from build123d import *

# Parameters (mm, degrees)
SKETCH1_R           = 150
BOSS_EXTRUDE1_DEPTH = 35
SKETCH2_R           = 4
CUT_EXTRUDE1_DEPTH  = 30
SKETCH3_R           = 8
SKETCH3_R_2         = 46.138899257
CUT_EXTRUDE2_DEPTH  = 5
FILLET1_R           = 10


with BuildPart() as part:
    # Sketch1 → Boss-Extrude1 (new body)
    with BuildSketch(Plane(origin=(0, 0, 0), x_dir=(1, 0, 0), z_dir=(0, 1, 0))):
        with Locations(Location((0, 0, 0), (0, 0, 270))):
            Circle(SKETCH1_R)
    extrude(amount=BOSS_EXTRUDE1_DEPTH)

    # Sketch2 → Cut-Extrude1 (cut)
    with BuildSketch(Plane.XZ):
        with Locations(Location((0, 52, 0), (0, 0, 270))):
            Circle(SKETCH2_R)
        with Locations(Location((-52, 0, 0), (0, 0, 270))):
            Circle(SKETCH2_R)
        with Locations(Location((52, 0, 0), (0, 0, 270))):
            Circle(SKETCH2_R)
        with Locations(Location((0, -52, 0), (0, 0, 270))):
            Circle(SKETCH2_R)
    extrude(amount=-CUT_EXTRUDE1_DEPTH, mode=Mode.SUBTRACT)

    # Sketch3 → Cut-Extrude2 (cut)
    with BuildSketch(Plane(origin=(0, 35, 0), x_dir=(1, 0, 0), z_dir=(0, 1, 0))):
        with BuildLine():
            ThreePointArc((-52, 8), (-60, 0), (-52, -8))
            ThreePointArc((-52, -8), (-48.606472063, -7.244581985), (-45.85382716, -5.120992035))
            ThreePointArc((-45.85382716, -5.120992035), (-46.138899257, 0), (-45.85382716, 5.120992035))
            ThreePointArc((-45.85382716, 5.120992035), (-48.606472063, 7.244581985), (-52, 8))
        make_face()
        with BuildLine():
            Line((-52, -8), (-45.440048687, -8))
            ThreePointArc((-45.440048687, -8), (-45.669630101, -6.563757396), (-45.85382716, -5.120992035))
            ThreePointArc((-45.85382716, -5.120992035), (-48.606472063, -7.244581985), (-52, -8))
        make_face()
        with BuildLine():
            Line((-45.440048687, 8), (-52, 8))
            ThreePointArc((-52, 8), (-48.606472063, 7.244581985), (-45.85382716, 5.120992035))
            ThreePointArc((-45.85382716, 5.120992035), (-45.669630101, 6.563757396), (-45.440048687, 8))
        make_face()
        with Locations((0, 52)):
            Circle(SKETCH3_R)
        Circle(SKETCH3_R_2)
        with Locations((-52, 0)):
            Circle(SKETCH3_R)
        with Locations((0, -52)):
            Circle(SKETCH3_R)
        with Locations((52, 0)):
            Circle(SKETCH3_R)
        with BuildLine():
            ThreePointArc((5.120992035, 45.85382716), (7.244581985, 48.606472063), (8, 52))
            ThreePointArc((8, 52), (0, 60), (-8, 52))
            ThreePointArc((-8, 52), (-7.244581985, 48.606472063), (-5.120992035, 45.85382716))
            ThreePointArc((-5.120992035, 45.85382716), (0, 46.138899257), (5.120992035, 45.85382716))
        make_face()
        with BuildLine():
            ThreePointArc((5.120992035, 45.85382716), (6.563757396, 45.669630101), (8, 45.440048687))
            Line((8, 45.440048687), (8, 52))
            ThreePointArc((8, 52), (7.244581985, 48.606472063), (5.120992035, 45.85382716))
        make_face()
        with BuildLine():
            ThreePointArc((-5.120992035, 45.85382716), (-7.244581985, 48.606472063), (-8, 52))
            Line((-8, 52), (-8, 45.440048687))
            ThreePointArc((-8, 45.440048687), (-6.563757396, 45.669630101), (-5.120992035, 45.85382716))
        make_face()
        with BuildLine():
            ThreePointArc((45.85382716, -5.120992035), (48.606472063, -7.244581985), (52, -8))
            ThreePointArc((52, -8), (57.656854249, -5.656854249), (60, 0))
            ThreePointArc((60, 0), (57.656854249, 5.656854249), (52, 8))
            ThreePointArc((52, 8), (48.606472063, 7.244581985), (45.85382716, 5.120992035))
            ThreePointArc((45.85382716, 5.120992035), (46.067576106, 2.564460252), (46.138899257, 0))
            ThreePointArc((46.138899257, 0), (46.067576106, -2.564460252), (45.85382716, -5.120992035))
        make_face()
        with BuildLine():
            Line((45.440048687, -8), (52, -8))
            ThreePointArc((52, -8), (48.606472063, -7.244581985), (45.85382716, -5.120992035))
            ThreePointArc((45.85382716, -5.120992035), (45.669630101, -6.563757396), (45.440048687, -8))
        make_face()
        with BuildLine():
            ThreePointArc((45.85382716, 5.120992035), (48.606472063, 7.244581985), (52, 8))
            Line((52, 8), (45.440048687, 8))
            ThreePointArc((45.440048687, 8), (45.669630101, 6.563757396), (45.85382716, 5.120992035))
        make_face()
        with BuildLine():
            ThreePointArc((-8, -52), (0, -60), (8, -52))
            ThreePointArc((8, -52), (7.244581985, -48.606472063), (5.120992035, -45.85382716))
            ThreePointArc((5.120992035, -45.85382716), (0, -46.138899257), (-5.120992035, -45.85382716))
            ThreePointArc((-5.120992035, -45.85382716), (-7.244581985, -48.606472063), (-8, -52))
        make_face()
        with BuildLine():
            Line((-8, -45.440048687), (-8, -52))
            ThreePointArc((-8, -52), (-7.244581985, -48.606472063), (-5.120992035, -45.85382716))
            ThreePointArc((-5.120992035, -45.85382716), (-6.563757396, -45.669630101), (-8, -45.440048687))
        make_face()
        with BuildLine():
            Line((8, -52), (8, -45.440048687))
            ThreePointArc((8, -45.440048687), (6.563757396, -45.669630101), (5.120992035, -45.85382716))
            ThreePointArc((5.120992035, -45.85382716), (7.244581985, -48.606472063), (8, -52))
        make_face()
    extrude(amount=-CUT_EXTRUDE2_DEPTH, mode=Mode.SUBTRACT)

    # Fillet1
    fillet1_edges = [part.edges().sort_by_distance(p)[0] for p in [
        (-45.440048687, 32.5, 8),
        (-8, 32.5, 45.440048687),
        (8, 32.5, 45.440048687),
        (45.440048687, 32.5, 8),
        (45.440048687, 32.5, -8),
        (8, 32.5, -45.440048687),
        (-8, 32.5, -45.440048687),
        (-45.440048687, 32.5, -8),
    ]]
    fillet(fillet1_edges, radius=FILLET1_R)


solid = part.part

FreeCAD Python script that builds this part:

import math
import FreeCAD as App
import Part
import Sketcher

V = App.Vector
Q = App.Units.Quantity


def edges_at(feature, points):
    """Names of the edges that pass closest to the given points."""
    edges = feature.Shape.Edges
    near = lambda p: min(range(len(edges)), key=lambda i: edges[i].distToShape(Part.Vertex(*p))[0])
    return sorted({f"Edge{near(p) + 1}" for p in points})

doc = App.newDocument("Part")
body = doc.addObject("PartDesign::Body", "Body")

# Sketch on XZ plane
sketch1 = body.newObject("Sketcher::SketchObject", "Sketch")
sketch1.AttachmentSupport = (doc.getObject("XZ_Plane"), [""])
sketch1.MapMode = "FlatFace"
sketch1.addGeometry(Part.Circle(V(0, 0, 0), V(0, 0, 1), 150), False)
sketch1.addConstraint(Sketcher.Constraint("Coincident", 0, 3, -1, 1))
sketch1.addConstraint(Sketcher.Constraint("Diameter", 0, Q("300 mm")))
pad1 = body.newObject("PartDesign::Pad", "Pad")
pad1.Profile = sketch1
pad1.Length = 35
pad1.Reversed = True

# Sketch on XZ plane
sketch2 = body.newObject("Sketcher::SketchObject", "Sketch001")
sketch2.AttachmentSupport = (doc.getObject("XZ_Plane"), [""])
sketch2.MapMode = "FlatFace"
sketch2.addGeometry(Part.Circle(V(0, 52, 0), V(0, 0, 1), 4), False)
sketch2.addGeometry(Part.Circle(V(-52, 0, 0), V(0, 0, 1), 4), False)
sketch2.addGeometry(Part.Circle(V(52, 0, 0), V(0, 0, 1), 4), False)
sketch2.addGeometry(Part.Circle(V(0, -52, 0), V(0, 0, 1), 4), False)
sketch2.addConstraint(Sketcher.Constraint("Equal", 0, 1))
sketch2.addConstraint(Sketcher.Constraint("Equal", 1, 2))
sketch2.addConstraint(Sketcher.Constraint("Equal", 2, 3))
sketch2.addConstraint(Sketcher.Constraint("Symmetric", 1, 3, 2, 3, -1, 1))
sketch2.addConstraint(Sketcher.Constraint("Symmetric", 0, 3, 3, 3, -1, 1))
sketch2.addConstraint(Sketcher.Constraint("PointOnObject", 0, 3, -2))
sketch2.addConstraint(Sketcher.Constraint("PointOnObject", 1, 3, -1))
sketch2.addConstraint(Sketcher.Constraint("Diameter", 0, Q("8 mm")))
sketch2.addConstraint(Sketcher.Constraint("DistanceY", -1, 1, 0, 3, Q("52 mm")))
sketch2.addConstraint(Sketcher.Constraint("DistanceX", 1, 3, -1, 1, Q("52 mm")))
pocket1 = body.newObject("PartDesign::Pocket", "Pocket")
pocket1.Profile = sketch2
pocket1.Length = 30

# Sketch on XZ plane
sketch3 = body.newObject("Sketcher::SketchObject", "Sketch002")
sketch3.AttachmentSupport = (doc.getObject("XZ_Plane"), [""])
sketch3.MapMode = "FlatFace"
sketch3.AttachmentOffset = App.Placement(V(0, 0, -35), App.Rotation())
sketch3.addGeometry(Part.LineSegment(V(8, -45, 0), V(8, -52, 0)), False)
sketch3.addGeometry(Part.ArcOfCircle(Part.Circle(V(0, -52, 0), V(0, 0, 1), 8), math.radians(180), math.radians(360)), False)
sketch3.addGeometry(Part.LineSegment(V(-8, -52, 0), V(-8, -45, 0)), False)
sketch3.addGeometry(Part.ArcOfCircle(Part.Circle(V(0, 0, 0), V(0, 0, 1), 46), math.radians(-170), math.radians(-100)), False)
sketch3.addGeometry(Part.LineSegment(V(-45, -8, 0), V(-52, -8, 0)), False)
sketch3.addGeometry(Part.ArcOfCircle(Part.Circle(V(-52, 0, 0), V(0, 0, 1), 8), math.radians(90), math.radians(270)), False)
sketch3.addGeometry(Part.LineSegment(V(-52, 8, 0), V(-45, 8, 0)), False)
sketch3.addGeometry(Part.ArcOfCircle(Part.Circle(V(0, 0, 0), V(0, 0, 1), 46), math.radians(100), math.radians(170)), False)
sketch3.addGeometry(Part.LineSegment(V(-8, 45, 0), V(-8, 52, 0)), False)
sketch3.addGeometry(Part.ArcOfCircle(Part.Circle(V(0, 52, 0), V(0, 0, 1), 8), math.radians(0), math.radians(180)), False)
sketch3.addGeometry(Part.LineSegment(V(8, 52, 0), V(8, 45, 0)), False)
sketch3.addGeometry(Part.ArcOfCircle(Part.Circle(V(0, 0, 0), V(0, 0, 1), 46), math.radians(10), math.radians(80)), False)
sketch3.addGeometry(Part.LineSegment(V(45, 8, 0), V(52, 8, 0)), False)
sketch3.addGeometry(Part.ArcOfCircle(Part.Circle(V(52, 0, 0), V(0, 0, 1), 8), math.radians(0), math.radians(90)), False)
sketch3.addGeometry(Part.ArcOfCircle(Part.Circle(V(52, 0, 0), V(0, 0, 1), 8), math.radians(-90), math.radians(0)), False)
sketch3.addGeometry(Part.LineSegment(V(52, -8, 0), V(45, -8, 0)), False)
sketch3.addGeometry(Part.ArcOfCircle(Part.Circle(V(0, 0, 0), V(0, 0, 1), 46), math.radians(-80), math.radians(-10)), False)
sketch3.addConstraint(Sketcher.Constraint("Tangent", 0, 2, 1, 2))
sketch3.addConstraint(Sketcher.Constraint("Tangent", 1, 1, 2, 1))
sketch3.addConstraint(Sketcher.Constraint("Coincident", 2, 2, 3, 2))
sketch3.addConstraint(Sketcher.Constraint("Coincident", 3, 1, 4, 1))
sketch3.addConstraint(Sketcher.Constraint("Tangent", 4, 2, 5, 2))
sketch3.addConstraint(Sketcher.Constraint("Tangent", 5, 1, 6, 1))
sketch3.addConstraint(Sketcher.Constraint("Coincident", 6, 2, 7, 2))
sketch3.addConstraint(Sketcher.Constraint("Coincident", 7, 1, 8, 1))
sketch3.addConstraint(Sketcher.Constraint("Tangent", 8, 2, 9, 2))
sketch3.addConstraint(Sketcher.Constraint("Tangent", 9, 1, 10, 1))
sketch3.addConstraint(Sketcher.Constraint("Coincident", 10, 2, 11, 2))
sketch3.addConstraint(Sketcher.Constraint("Coincident", 11, 1, 12, 1))
sketch3.addConstraint(Sketcher.Constraint("Tangent", 12, 2, 13, 2))
sketch3.addConstraint(Sketcher.Constraint("Tangent", 13, 1, 14, 2))
sketch3.addConstraint(Sketcher.Constraint("Tangent", 14, 1, 15, 1))
sketch3.addConstraint(Sketcher.Constraint("Coincident", 15, 2, 16, 2))
sketch3.addConstraint(Sketcher.Constraint("Coincident", 16, 1, 0, 1))
sketch3.addConstraint(Sketcher.Constraint("Vertical", 0))
sketch3.addConstraint(Sketcher.Constraint("Vertical", 2))
sketch3.addConstraint(Sketcher.Constraint("Horizontal", 4))
sketch3.addConstraint(Sketcher.Constraint("Horizontal", 6))
sketch3.addConstraint(Sketcher.Constraint("Vertical", 8))
sketch3.addConstraint(Sketcher.Constraint("Vertical", 10))
sketch3.addConstraint(Sketcher.Constraint("Horizontal", 12))
sketch3.addConstraint(Sketcher.Constraint("Horizontal", 15))
sketch3.addConstraint(Sketcher.Constraint("Coincident", 3, 3, -1, 1))
sketch3.addConstraint(Sketcher.Constraint("Coincident", 7, 3, -1, 1))
sketch3.addConstraint(Sketcher.Constraint("Coincident", 11, 3, -1, 1))
sketch3.addConstraint(Sketcher.Constraint("Coincident", 16, 3, -1, 1))
sketch3.addConstraint(Sketcher.Constraint("Equal", 1, 5))
sketch3.addConstraint(Sketcher.Constraint("Equal", 3, 7))
sketch3.addConstraint(Sketcher.Constraint("Equal", 5, 9))
sketch3.addConstraint(Sketcher.Constraint("Equal", 7, 11))
sketch3.addConstraint(Sketcher.Constraint("Equal", 9, 13))
sketch3.addConstraint(Sketcher.Constraint("Equal", 13, 14))
sketch3.addConstraint(Sketcher.Constraint("Equal", 11, 16))
sketch3.addConstraint(Sketcher.Constraint("Symmetric", 1, 3, 9, 3, -1, 1))
sketch3.addConstraint(Sketcher.Constraint("Symmetric", 5, 3, 13, 3, -1, 1))
sketch3.addConstraint(Sketcher.Constraint("PointOnObject", 1, 3, -2))
sketch3.addConstraint(Sketcher.Constraint("PointOnObject", 5, 3, -1))
sketch3.addConstraint(Sketcher.Constraint("PointOnObject", 13, 1, -1))
sketch3.addConstraint(Sketcher.Constraint("Equal", 15, 0))
sketch3.addConstraint(Sketcher.Constraint("Radius", 1, Q("8 mm")))
sketch3.addConstraint(Sketcher.Constraint("DistanceY", 1, 3, -1, 1, Q("52 mm")))
sketch3.addConstraint(Sketcher.Constraint("Radius", 3, Q("46.138899 mm")))
pocket2 = body.newObject("PartDesign::Pocket", "Pocket001")
pocket2.Profile = sketch3
pocket2.Length = 5
pocket2.Reversed = True
doc.recompute()

fillet = body.newObject("PartDesign::Fillet", "Fillet")
fillet.Base = (pocket2, edges_at(pocket2, [
    (-45.44, 32.5, 8),
    (-8, 32.5, 45.44),
    (8, 32.5, 45.44),
    (45.44, 32.5, 8),
    (45.44, 32.5, -8),
    (8, 32.5, -45.44),
    (-8, 32.5, -45.44),
    (-45.44, 32.5, -8),
]))
fillet.Radius = 10

doc.recompute()
